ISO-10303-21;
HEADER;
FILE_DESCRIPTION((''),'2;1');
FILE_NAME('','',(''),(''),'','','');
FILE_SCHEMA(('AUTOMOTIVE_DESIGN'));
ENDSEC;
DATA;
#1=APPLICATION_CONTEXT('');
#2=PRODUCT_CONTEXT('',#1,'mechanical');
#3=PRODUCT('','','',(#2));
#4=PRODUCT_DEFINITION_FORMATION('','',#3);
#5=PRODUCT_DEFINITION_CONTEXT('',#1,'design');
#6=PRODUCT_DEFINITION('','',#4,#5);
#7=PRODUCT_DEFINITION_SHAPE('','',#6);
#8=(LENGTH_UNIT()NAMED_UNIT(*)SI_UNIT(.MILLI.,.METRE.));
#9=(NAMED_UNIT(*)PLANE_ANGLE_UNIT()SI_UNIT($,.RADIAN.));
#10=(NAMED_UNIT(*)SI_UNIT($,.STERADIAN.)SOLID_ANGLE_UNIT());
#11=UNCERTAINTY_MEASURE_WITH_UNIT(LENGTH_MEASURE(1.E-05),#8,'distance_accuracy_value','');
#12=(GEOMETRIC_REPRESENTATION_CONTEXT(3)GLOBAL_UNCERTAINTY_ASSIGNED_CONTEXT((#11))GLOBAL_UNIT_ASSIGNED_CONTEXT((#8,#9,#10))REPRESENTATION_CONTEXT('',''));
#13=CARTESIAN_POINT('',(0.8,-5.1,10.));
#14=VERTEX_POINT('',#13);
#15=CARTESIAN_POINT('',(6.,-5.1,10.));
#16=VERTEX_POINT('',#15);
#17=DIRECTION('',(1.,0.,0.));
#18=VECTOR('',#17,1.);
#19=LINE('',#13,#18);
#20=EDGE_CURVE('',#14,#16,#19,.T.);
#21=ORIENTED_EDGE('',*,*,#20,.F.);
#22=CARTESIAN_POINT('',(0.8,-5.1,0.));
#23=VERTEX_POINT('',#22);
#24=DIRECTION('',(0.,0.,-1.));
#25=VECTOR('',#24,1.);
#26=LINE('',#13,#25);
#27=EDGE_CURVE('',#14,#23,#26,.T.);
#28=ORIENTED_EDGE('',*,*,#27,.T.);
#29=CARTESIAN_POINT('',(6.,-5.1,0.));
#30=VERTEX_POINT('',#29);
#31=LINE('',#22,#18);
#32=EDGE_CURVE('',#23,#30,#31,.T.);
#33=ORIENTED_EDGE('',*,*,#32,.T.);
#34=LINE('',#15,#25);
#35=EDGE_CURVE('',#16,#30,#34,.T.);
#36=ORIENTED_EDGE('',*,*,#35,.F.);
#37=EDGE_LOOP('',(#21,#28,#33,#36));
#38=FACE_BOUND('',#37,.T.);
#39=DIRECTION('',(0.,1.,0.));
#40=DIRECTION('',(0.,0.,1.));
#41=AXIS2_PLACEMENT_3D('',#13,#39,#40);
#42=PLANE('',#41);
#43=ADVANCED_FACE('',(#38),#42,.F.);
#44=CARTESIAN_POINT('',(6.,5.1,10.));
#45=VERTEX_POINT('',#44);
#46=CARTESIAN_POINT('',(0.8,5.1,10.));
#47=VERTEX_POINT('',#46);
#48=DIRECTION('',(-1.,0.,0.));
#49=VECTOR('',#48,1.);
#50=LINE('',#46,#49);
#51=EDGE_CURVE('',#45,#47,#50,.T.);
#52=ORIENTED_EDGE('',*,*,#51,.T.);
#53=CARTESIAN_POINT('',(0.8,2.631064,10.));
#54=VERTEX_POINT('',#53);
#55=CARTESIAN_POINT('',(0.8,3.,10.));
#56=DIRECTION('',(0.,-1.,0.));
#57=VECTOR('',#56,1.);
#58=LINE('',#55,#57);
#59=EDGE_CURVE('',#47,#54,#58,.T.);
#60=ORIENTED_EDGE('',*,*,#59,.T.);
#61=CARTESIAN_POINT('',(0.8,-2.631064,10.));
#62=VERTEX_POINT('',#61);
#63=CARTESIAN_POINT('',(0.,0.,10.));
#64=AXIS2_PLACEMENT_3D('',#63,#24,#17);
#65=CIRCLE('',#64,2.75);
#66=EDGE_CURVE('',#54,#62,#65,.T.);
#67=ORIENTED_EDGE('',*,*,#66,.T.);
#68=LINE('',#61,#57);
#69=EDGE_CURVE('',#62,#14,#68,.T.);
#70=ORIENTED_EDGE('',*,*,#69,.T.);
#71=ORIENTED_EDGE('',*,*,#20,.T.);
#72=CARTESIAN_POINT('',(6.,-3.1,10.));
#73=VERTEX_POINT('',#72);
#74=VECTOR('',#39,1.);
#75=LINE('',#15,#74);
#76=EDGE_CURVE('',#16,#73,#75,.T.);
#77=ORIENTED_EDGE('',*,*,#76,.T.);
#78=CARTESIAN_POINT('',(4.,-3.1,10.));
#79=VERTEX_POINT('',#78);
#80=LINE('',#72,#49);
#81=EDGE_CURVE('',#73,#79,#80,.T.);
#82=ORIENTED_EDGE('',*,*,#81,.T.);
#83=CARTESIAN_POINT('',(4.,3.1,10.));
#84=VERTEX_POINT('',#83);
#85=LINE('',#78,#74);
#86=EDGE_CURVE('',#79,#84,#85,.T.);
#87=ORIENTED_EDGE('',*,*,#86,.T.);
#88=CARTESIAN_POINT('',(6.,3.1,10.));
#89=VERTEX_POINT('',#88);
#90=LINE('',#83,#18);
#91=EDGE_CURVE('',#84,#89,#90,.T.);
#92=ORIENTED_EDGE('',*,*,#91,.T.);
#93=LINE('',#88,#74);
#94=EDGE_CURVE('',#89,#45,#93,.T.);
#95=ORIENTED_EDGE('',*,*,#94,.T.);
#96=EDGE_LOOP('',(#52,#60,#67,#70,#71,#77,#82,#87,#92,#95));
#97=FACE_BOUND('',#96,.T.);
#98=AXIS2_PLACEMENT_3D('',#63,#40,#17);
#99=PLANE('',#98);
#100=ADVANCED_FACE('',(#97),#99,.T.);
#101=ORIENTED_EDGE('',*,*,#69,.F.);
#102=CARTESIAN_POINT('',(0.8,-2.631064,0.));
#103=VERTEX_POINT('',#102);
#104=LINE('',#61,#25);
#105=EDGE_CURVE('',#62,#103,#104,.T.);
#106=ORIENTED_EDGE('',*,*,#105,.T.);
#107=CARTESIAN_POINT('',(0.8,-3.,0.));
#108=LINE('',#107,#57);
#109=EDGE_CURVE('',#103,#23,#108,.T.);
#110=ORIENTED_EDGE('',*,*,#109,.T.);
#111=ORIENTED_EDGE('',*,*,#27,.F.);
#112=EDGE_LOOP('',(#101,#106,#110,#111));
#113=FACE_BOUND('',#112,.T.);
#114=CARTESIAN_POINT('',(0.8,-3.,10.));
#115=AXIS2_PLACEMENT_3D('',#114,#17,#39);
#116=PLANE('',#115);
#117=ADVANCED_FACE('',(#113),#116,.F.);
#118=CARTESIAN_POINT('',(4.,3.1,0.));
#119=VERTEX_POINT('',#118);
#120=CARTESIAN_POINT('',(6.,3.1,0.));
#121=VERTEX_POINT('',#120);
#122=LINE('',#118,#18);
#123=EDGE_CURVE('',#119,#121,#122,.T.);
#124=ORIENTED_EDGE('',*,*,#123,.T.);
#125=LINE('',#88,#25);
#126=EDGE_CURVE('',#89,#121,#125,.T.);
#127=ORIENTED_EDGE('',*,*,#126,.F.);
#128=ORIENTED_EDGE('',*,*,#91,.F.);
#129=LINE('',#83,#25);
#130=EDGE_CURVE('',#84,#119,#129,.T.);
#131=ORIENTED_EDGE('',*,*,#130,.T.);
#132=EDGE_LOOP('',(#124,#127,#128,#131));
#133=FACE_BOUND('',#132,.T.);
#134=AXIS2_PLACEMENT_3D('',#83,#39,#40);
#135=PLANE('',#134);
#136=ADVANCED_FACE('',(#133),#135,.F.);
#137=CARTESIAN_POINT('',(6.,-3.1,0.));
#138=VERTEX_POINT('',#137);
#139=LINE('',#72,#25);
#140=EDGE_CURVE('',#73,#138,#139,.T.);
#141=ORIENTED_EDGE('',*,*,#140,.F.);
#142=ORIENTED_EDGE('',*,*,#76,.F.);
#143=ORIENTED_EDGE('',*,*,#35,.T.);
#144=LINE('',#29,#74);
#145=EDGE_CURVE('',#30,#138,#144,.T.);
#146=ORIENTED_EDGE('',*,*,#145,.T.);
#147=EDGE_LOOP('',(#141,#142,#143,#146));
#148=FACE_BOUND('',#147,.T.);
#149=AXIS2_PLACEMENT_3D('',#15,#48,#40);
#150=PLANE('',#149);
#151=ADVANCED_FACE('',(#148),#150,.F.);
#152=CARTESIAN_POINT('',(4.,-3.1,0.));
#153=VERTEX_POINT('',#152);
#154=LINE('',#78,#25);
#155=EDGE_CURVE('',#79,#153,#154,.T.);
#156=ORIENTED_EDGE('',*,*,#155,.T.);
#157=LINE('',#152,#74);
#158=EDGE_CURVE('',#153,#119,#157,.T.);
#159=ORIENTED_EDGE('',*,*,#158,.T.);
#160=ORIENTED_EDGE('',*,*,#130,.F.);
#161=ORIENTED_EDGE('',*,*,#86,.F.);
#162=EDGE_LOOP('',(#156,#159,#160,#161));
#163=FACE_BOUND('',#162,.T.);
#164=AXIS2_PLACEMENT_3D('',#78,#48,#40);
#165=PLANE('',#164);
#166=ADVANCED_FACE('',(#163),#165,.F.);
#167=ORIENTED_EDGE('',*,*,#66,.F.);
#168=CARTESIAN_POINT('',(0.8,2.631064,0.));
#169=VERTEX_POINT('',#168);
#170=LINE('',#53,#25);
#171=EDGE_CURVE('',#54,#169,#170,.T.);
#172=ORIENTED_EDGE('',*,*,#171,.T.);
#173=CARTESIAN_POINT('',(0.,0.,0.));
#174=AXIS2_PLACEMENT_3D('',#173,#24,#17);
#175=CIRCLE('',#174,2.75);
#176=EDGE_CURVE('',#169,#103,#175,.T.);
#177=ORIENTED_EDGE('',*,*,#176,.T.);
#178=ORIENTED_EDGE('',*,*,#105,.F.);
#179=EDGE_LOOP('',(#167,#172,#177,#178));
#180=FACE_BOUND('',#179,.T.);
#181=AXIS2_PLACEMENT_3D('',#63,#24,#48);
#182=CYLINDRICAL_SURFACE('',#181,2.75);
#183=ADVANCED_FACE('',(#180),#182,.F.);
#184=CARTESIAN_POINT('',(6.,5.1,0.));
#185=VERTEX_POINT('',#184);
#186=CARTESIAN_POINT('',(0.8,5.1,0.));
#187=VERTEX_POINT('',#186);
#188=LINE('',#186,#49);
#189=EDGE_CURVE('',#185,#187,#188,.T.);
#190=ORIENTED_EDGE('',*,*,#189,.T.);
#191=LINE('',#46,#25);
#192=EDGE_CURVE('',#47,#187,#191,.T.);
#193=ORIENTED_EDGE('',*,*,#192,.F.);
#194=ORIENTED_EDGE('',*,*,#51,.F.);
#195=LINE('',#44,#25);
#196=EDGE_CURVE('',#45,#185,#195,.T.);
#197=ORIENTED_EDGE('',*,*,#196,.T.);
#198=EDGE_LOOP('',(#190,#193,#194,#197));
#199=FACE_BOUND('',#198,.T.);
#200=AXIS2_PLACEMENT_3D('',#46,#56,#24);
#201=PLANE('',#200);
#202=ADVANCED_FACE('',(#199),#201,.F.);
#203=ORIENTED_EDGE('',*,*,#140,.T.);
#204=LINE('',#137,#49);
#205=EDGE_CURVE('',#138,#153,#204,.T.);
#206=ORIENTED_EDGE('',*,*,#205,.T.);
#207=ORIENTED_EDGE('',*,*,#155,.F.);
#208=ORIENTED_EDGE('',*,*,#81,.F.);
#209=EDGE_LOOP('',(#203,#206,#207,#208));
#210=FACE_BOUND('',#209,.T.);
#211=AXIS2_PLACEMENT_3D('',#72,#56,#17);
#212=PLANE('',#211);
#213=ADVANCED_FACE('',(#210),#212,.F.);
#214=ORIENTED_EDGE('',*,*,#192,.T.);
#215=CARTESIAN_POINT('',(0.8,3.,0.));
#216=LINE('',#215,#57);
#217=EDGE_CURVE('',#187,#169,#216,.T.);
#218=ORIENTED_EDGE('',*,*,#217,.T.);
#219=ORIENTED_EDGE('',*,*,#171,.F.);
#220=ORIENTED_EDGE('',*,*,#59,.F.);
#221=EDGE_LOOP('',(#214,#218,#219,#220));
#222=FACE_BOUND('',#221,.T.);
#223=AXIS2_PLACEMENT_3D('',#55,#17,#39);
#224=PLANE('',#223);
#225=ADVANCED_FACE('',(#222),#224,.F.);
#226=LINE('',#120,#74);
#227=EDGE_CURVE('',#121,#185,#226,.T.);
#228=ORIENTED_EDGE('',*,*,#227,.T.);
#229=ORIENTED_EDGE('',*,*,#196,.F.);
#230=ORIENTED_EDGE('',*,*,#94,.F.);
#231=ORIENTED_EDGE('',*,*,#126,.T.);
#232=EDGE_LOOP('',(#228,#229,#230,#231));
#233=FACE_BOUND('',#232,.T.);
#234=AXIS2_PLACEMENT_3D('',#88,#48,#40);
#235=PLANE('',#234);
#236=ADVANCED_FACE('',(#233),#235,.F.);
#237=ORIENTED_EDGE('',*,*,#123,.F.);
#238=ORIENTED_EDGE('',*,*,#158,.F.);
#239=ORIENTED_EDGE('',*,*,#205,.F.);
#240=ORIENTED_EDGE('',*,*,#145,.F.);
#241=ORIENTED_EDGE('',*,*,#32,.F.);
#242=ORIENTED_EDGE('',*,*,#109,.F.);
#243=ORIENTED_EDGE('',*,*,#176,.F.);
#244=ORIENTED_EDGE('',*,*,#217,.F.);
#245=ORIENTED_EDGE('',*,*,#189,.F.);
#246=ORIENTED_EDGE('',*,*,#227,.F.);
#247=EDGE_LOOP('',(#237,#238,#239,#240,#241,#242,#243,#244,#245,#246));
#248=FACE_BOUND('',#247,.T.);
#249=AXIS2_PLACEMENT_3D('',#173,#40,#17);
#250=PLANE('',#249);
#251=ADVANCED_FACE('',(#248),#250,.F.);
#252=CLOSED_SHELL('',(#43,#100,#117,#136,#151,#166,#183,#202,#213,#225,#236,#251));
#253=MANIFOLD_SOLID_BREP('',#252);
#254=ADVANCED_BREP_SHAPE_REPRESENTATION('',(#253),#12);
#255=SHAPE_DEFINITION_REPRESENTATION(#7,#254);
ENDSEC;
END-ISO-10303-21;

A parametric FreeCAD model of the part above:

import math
import FreeCAD as App
import Part
import Sketcher

V = App.Vector
Q = App.Units.Quantity

doc = App.newDocument("Part")
body = doc.addObject("PartDesign::Body", "Body")

sketch1 = doc.addObject("Sketcher::SketchObject", "Sketch")
body.addObject(sketch1)
sketch1.AttachmentSupport = (doc.XY_Plane, [""])
sketch1.MapMode = "FlatFace"
sketch1.addGeometry(Part.LineSegment(V(4, -3.1, 0), V(4, 3.1, 0)), False)
sketch1.addGeometry(Part.LineSegment(V(4, 3.1, 0), V(6, 3.1, 0)), False)
sketch1.addGeometry(Part.LineSegment(V(6, 3.1, 0), V(6, 5.1, 0)), False)
sketch1.addGeometry(Part.LineSegment(V(6, 5.1, 0), V(0.8, 5.1, 0)), False)
sketch1.addGeometry(Part.LineSegment(V(0.8, 5.1, 0), V(0.8, 2.631064, 0)), False)
sketch1.addGeometry(Part.ArcOfCircle(Part.Circle(V(0, 0, 0), V(0, 0, 1), 2.75), math.radians(-73.08761), math.radians(73.08761)), False)
sketch1.addGeometry(Part.LineSegment(V(0.8, -2.631064, 0), V(0.8, -5.1, 0)), False)
sketch1.addGeometry(Part.LineSegment(V(0.8, -5.1, 0), V(6, -5.1, 0)), False)
sketch1.addGeometry(Part.LineSegment(V(6, -5.1, 0), V(6, -3.1, 0)), False)
sketch1.addGeometry(Part.LineSegment(V(6, -3.1, 0), V(4, -3.1, 0)), False)
sketch1.addConstraint(Sketcher.Constraint("Coincident", 0, 2, 1, 1))
sketch1.addConstraint(Sketcher.Constraint("Coincident", 1, 2, 2, 1))
sketch1.addConstraint(Sketcher.Constraint("Coincident", 2, 2, 3, 1))
sketch1.addConstraint(Sketcher.Constraint("Coincident", 3, 2, 4, 1))
sketch1.addConstraint(Sketcher.Constraint("Coincident", 4, 2, 5, 2))
sketch1.addConstraint(Sketcher.Constraint("Coincident", 5, 1, 6, 1))
sketch1.addConstraint(Sketcher.Constraint("Coincident", 6, 2, 7, 1))
sketch1.addConstraint(Sketcher.Constraint("Coincident", 7, 2, 8, 1))
sketch1.addConstraint(Sketcher.Constraint("Coincident", 8, 2, 9, 1))
sketch1.addConstraint(Sketcher.Constraint("Coincident", 9, 2, 0, 1))
sketch1.addConstraint(Sketcher.Constraint("Vertical", 0))
sketch1.addConstraint(Sketcher.Constraint("Horizontal", 1))
sketch1.addConstraint(Sketcher.Constraint("Vertical", 2))
sketch1.addConstraint(Sketcher.Constraint("Horizontal", 3))
sketch1.addConstraint(Sketcher.Constraint("Vertical", 4))
sketch1.addConstraint(Sketcher.Constraint("Vertical", 6))
sketch1.addConstraint(Sketcher.Constraint("Horizontal", 7))
sketch1.addConstraint(Sketcher.Constraint("Vertical", 8))
sketch1.addConstraint(Sketcher.Constraint("Horizontal", 9))
sketch1.addConstraint(Sketcher.Constraint("Coincident", 5, 3, -1, 1))
sketch1.addConstraint(Sketcher.Constraint("Symmetric", 3, 2, 6, 2, -1))
sketch1.addConstraint(Sketcher.Constraint("Symmetric", 1, 2, 8, 2, -1))
sketch1.addConstraint(Sketcher.Constraint("Equal", 9, 2))
sketch1.addConstraint(Sketcher.Constraint("DistanceX", 1, 1, 1, 2, Q("2 mm")))
sketch1.addConstraint(Sketcher.Constraint("Radius", 5, Q("2.75 mm")))
sketch1.addConstraint(Sketcher.Constraint("DistanceX", 3, 2, 3, 1, Q("5.2 mm")))
sketch1.addConstraint(Sketcher.Constraint("DistanceY", 0, 1, 0, 2, Q("6.2 mm")))
sketch1.addConstraint(Sketcher.Constraint("DistanceX", -1, 1, 0, 2, Q("4 mm")))
pad1 = doc.addObject("PartDesign::Pad", "Pad")
body.addObject(pad1)
pad1.Profile = sketch1
pad1.Length = 10

doc.recompute()
